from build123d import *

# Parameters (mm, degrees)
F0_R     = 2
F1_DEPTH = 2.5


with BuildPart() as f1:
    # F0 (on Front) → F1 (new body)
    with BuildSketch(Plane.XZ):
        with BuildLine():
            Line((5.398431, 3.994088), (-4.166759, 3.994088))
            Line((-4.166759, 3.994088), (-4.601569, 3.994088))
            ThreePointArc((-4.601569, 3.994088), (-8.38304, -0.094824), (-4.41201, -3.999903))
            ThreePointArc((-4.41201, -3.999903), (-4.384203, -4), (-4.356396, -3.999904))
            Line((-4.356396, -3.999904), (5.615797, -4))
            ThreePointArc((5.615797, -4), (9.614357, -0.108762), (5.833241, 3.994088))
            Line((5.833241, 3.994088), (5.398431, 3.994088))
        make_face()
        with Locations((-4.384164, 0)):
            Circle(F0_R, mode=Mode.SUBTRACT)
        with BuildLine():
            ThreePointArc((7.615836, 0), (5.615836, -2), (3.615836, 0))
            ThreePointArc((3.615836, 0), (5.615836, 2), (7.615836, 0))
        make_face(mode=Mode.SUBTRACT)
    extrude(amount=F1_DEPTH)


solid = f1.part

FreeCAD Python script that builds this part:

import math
import FreeCAD as App
import Part
import Sketcher
Q = App.Units.Quantity

doc = App.newDocument("Part")
body = doc.addObject("PartDesign::Body", "Body")

# Sketch on XZ plane
sketch1 = body.newObject("Sketcher::SketchObject", "Sketch")
sketch1.AttachmentSupport = (doc.getObject("XZ_Plane"), [""])
sketch1.MapMode = "FlatFace"
sketch1.addGeometry(Part.ArcOfCircle(Part.Circle(App.Vector(-4.384164, 0, 0), App.Vector(0, 0, 1), 4), math.radians(93.115634), math.radians(269.601131)), False)
sketch1.addGeometry(Part.ArcOfCircle(Part.Circle(App.Vector(-4.384131, 0.006417, 0), App.Vector(0, 0, 1), 4.006417), math.radians(-90.398701), math.radians(-89.603359)), False)
sketch1.addGeometry(Part.LineSegment(App.Vector(-4.356396, -3.999904, 0), App.Vector(5.615797, -4, 0)), False)
sketch1.addGeometry(Part.ArcOfCircle(Part.Circle(App.Vector(5.615836, 0, 0), App.Vector(0, 0, 1), 4), math.radians(-90.000554), math.radians(86.884363)), False)
sketch1.addGeometry(Part.LineSegment(App.Vector(5.833241, 3.994088, 0), App.Vector(-4.601569, 3.994088, 0)), False)
sketch1.addGeometry(Part.Circle(App.Vector(-4.384164, 0, 0), App.Vector(0, 0, 1), 2), False)
sketch1.addGeometry(Part.Circle(App.Vector(5.615836, 0, 0), App.Vector(0, 0, 1), 2), False)
sketch1.addConstraint(Sketcher.Constraint("Coincident", 0, 2, 1, 1))
sketch1.addConstraint(Sketcher.Constraint("Coincident", 1, 2, 2, 1))
sketch1.addConstraint(Sketcher.Constraint("Coincident", 2, 2, 3, 1))
sketch1.addConstraint(Sketcher.Constraint("Coincident", 3, 2, 4, 1))
sketch1.addConstraint(Sketcher.Constraint("Coincident", 4, 2, 0, 1))
sketch1.addConstraint(Sketcher.Constraint("Horizontal", 4))
sketch1.addConstraint(Sketcher.Constraint("Coincident", 5, 3, 0, 3))
sketch1.addConstraint(Sketcher.Constraint("Coincident", 6, 3, 3, 3))
sketch1.addConstraint(Sketcher.Constraint("PointOnObject", 0, 3, -1))
sketch1.addConstraint(Sketcher.Constraint("PointOnObject", 3, 3, -1))
sketch1.addConstraint(Sketcher.Constraint("Diameter", 5, Q("4 mm")))
sketch1.addConstraint(Sketcher.Constraint("Diameter", 6, Q("4 mm")))
sketch1.addConstraint(Sketcher.Constraint("Radius", 0, Q("4 mm")))
sketch1.addConstraint(Sketcher.Constraint("Radius", 3, Q("4 mm")))
sketch1.addConstraint(Sketcher.Constraint("DistanceX", 0, 3, 3, 3, Q("10 mm")))
sketch1.addConstraint(Sketcher.Constraint("Radius", 1, Q("4.006417 mm")))
sketch1.addConstraint(Sketcher.Constraint("DistanceX", 4, 2, 4, 1, Q("10.43481 mm")))
sketch1.addConstraint(Sketcher.Constraint("DistanceX", 1, 3, -1, 1, Q("4.384131 mm")))
sketch1.addConstraint(Sketcher.Constraint("DistanceX", 0, 2, -1, 1, Q("4.41201 mm")))
sketch1.addConstraint(Sketcher.Constraint("DistanceX", -1, 1, 3, 2, Q("5.833241 mm")))
sketch1.addConstraint(Sketcher.Constraint("DistanceX", 5, 3, 1, 2, Q("0.027768 mm")))
sketch1.addConstraint(Sketcher.Constraint("DistanceX", 5, 3, 2, 2, Q("9.999961 mm")))
pad1 = body.newObject("PartDesign::Pad", "Pad")
pad1.Profile = sketch1
pad1.Length = 2.5

doc.recompute()
